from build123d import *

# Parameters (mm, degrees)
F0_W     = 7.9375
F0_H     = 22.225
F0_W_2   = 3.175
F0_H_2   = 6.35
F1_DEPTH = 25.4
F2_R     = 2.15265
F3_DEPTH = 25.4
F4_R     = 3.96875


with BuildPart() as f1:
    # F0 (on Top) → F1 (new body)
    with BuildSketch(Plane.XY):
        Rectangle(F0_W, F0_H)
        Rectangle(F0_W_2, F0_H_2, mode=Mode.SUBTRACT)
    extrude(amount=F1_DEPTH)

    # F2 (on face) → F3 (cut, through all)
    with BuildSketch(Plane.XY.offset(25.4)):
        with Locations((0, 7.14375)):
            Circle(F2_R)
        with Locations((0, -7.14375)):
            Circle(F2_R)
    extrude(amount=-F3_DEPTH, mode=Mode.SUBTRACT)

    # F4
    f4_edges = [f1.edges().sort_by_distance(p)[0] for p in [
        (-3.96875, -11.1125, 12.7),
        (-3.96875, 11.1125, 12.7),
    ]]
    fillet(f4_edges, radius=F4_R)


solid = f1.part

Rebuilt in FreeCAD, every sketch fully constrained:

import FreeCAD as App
import Part
import Sketcher
Q = App.Units.Quantity


def edges_at(feature, points):
    """Names of the edges that pass closest to the given points."""
    edges = feature.Shape.Edges
    near = lambda p: min(range(len(edges)), key=lambda i: edges[i].distToShape(Part.Vertex(*p))[0])
    return sorted({f"Edge{near(p) + 1}" for p in points})

doc = App.newDocument("Part")
body = doc.addObject("PartDesign::Body", "Body")

sketch1 = body.newObject("Sketcher::SketchObject", "Sketch")
sketch1.AttachmentSupport = (doc.getObject("XY_Plane"), [""])
sketch1.MapMode = "FlatFace"
sketch1.addGeometry(Part.LineSegment(App.Vector(-4, 11.1, 0), App.Vector(-4, -11.1, 0)), False)
sketch1.addGeometry(Part.LineSegment(App.Vector(-4, -11.1, 0), App.Vector(4, -11.1, 0)), False)
sketch1.addGeometry(Part.LineSegment(App.Vector(4, -11.1, 0), App.Vector(4, 11.1, 0)), False)
sketch1.addGeometry(Part.LineSegment(App.Vector(4, 11.1, 0), App.Vector(-4, 11.1, 0)), False)
sketch1.addGeometry(Part.LineSegment(App.Vector(1.6, -3.2, 0), App.Vector(-1.6, -3.2, 0)), False)
sketch1.addGeometry(Part.LineSegment(App.Vector(-1.6, -3.2, 0), App.Vector(-1.6, 3.2, 0)), False)
sketch1.addGeometry(Part.LineSegment(App.Vector(-1.6, 3.2, 0), App.Vector(1.6, 3.2, 0)), False)
sketch1.addGeometry(Part.LineSegment(App.Vector(1.6, 3.2, 0), App.Vector(1.6, -3.2, 0)), False)
sketch1.addConstraint(Sketcher.Constraint("Coincident", 0, 2, 1, 1))
sketch1.addConstraint(Sketcher.Constraint("Coincident", 1, 2, 2, 1))
sketch1.addConstraint(Sketcher.Constraint("Coincident", 2, 2, 3, 1))
sketch1.addConstraint(Sketcher.Constraint("Coincident", 3, 2, 0, 1))
sketch1.addConstraint(Sketcher.Constraint("Coincident", 4, 2, 5, 1))
sketch1.addConstraint(Sketcher.Constraint("Coincident", 5, 2, 6, 1))
sketch1.addConstraint(Sketcher.Constraint("Coincident", 6, 2, 7, 1))
sketch1.addConstraint(Sketcher.Constraint("Coincident", 7, 2, 4, 1))
sketch1.addConstraint(Sketcher.Constraint("Vertical", 0))
sketch1.addConstraint(Sketcher.Constraint("Horizontal", 1))
sketch1.addConstraint(Sketcher.Constraint("Vertical", 2))
sketch1.addConstraint(Sketcher.Constraint("Horizontal", 3))
sketch1.addConstraint(Sketcher.Constraint("Horizontal", 4))
sketch1.addConstraint(Sketcher.Constraint("Vertical", 5))
sketch1.addConstraint(Sketcher.Constraint("Horizontal", 6))
sketch1.addConstraint(Sketcher.Constraint("Vertical", 7))
sketch1.addConstraint(Sketcher.Constraint("Symmetric", 0, 2, 2, 2, -1, 1))
sketch1.addConstraint(Sketcher.Constraint("Symmetric", 4, 2, 6, 2, -1, 1))
sketch1.addConstraint(Sketcher.Constraint("DistanceY", 5, 1, 5, 2, Q("0.25 in")))
sketch1.addConstraint(Sketcher.Constraint("DistanceX", 1, 1, 1, 2, Q("0.3125 in")))
sketch1.addConstraint(Sketcher.Constraint("DistanceX", 4, 2, 4, 1, Q("0.125 in")))
sketch1.addConstraint(Sketcher.Constraint("DistanceY", 0, 2, 0, 1, Q("0.875 in")))
pad1 = body.newObject("PartDesign::Pad", "Pad")
pad1.Profile = sketch1
pad1.Length = Q("1 in")

sketch2 = body.newObject("Sketcher::SketchObject", "Sketch001")
sketch2.AttachmentSupport = (doc.getObject("XY_Plane"), [""])
sketch2.MapMode = "FlatFace"
sketch2.AttachmentOffset = App.Placement(App.Vector(0, 0, 1 * 25.4), App.Rotation())
sketch2.addGeometry(Part.Circle(App.Vector(0, 7.1, 0), App.Vector(0, 0, 1), 2.2), False)
sketch2.addGeometry(Part.Circle(App.Vector(0, -7.1, 0), App.Vector(0, 0, 1), 2.2), False)
sketch2.addConstraint(Sketcher.Constraint("Equal", 0, 1))
sketch2.addConstraint(Sketcher.Constraint("Symmetric", 0, 3, 1, 3, -1, 1))
sketch2.addConstraint(Sketcher.Constraint("PointOnObject", 0, 3, -2))
sketch2.addConstraint(Sketcher.Constraint("Diameter", 0, Q("0.1695 in")))
sketch2.addConstraint(Sketcher.Constraint("DistanceY", -1, 1, 0, 3, Q("0.28125 in")))
pocket1 = body.newObject("PartDesign::Pocket", "Pocket")
pocket1.Profile = sketch2
pocket1.Type = "ThroughAll"
doc.recompute()

fillet = body.newObject("PartDesign::Fillet", "Fillet")
fillet.Base = (pocket1, edges_at(pocket1, [(-3.969, -11.113, 12.7), (-3.969, 11.113, 12.7)]))
fillet.Radius = Q("0.15625 in")

doc.recompute()
